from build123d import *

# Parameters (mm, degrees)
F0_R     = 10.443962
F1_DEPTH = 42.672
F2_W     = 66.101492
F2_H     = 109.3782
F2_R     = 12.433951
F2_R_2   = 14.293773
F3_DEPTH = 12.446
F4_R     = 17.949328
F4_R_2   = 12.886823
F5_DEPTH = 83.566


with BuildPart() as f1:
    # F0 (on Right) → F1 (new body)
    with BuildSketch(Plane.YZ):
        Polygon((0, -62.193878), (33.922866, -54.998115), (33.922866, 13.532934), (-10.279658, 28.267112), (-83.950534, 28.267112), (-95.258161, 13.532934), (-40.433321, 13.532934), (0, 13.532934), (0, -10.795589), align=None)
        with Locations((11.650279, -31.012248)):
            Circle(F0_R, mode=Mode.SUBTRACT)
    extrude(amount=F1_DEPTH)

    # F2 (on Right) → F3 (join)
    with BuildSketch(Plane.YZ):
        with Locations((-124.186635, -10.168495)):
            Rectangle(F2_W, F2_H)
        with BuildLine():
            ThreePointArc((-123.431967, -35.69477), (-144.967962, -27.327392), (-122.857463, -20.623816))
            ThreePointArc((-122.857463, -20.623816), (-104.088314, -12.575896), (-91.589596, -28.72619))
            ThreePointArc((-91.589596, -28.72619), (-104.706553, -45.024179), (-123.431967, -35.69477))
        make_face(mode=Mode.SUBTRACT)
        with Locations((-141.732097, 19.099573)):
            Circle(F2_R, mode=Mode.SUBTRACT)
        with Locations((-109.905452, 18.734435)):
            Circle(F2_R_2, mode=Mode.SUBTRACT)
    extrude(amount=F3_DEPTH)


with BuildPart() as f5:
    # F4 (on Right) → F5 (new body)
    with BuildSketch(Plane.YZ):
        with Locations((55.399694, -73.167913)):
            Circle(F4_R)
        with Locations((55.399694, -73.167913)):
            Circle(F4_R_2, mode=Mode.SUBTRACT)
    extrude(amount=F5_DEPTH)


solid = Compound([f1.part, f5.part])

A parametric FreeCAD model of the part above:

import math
import FreeCAD as App
import Part
import Sketcher

V = App.Vector
Q = App.Units.Quantity

doc = App.newDocument("Part")
body = doc.addObject("PartDesign::Body", "Body")

sketch1 = doc.addObject("Sketcher::SketchObject", "Sketch")
body.addObject(sketch1)
sketch1.AttachmentSupport = (doc.YZ_Plane, [""])
sketch1.MapMode = "FlatFace"
sketch1.addGeometry([
    Part.LineSegment(V(0, -62, 0), V(34, -55, 0)),
    Part.LineSegment(V(34, -55, 0), V(34, 14, 0)),
    Part.LineSegment(V(34, 14, 0), V(-10, 28, 0)),
    Part.LineSegment(V(-10, 28, 0), V(-84, 28, 0)),
    Part.LineSegment(V(-84, 28, 0), V(-95, 14, 0)),
    Part.LineSegment(V(-95, 14, 0), V(0, 14, 0)),
    Part.LineSegment(V(0, 14, 0), V(0, -62, 0)),
    Part.Circle(V(12, -31, 0), V(0, 0, 1), 10),
], False)
sketch1.addConstraint([
    Sketcher.Constraint("Coincident", 0, 2, 1, 1),
    Sketcher.Constraint("Coincident", 1, 2, 2, 1),
    Sketcher.Constraint("Coincident", 2, 2, 3, 1),
    Sketcher.Constraint("Coincident", 3, 2, 4, 1),
    Sketcher.Constraint("Coincident", 4, 2, 5, 1),
    Sketcher.Constraint("Coincident", 5, 2, 6, 1),
    Sketcher.Constraint("Coincident", 6, 2, 0, 1),
    Sketcher.Constraint("Vertical", 1),
    Sketcher.Constraint("Horizontal", 3),
    Sketcher.Constraint("Horizontal", 5),
    Sketcher.Constraint("Vertical", 6),
    Sketcher.Constraint("PointOnObject", 5, 2, -2),
    Sketcher.Constraint("Horizontal", 1, 2, 4, 2),
    Sketcher.Constraint("Diameter", 7, 20.887924),
    Sketcher.Constraint("DistanceX", 5, 1, 5, 2, 95.258161),
    Sketcher.Constraint("DistanceY", 1, 1, 1, 2, 68.531049),
    Sketcher.Constraint("DistanceY", 6, 2, 6, 1, 75.726812),
    Sketcher.Constraint("DistanceX", 3, 2, 1, 2, 117.8734),
    Sketcher.Constraint("DistanceX", 3, 2, 3, 1, 73.670876),
    Sketcher.Constraint("DistanceX", -1, 1, 7, 3, 11.650279),
    Sketcher.Constraint("DistanceY", 7, 3, 1, 2, 44.545182),
    Sketcher.Constraint("DistanceY", 1, 2, 2, 2, 14.734178),
    Sketcher.Constraint("Distance", 0, 34.677656),
    Sketcher.Constraint("DistanceY", 7, 3, -1, 1, 31.012248),
])
pad1 = doc.addObject("PartDesign::Pad", "Pad")
body.addObject(pad1)
pad1.Profile = sketch1
pad1.Length = Q("1.68 in")

sketch2 = doc.addObject("Sketcher::SketchObject", "Sketch001")
body.addObject(sketch2)
sketch2.AttachmentSupport = (doc.YZ_Plane, [""])
sketch2.MapMode = "FlatFace"
sketch2.addGeometry([
    Part.LineSegment(V(-157, 45, 0), V(-157, -65, 0)),
    Part.LineSegment(V(-157, -65, 0), V(-91, -65, 0)),
    Part.LineSegment(V(-91, -65, 0), V(-91, 45, 0)),
    Part.LineSegment(V(-91, 45, 0), V(-157, 45, 0)),
    Part.ArcOfCircle(Part.Circle(V(-108, -29, 0), V(0, 0, 1), 17), math.radians(-155), math.radians(0)),
    Part.ArcOfCircle(Part.Circle(V(-133, -28, 0), V(0, 0, 1), 12), math.radians(36), math.radians(320)),
    Part.ArcOfCircle(Part.Circle(V(-108, -29, 0), V(0, 0, 1), 17), math.radians(0), math.radians(151)),
    Part.Circle(V(-142, 19, 0), V(0, 0, 1), 12),
    Part.Circle(V(-110, 19, 0), V(0, 0, 1), 14),
], False)
sketch2.addConstraint([
    Sketcher.Constraint("Coincident", 0, 2, 1, 1),
    Sketcher.Constraint("Coincident", 1, 2, 2, 1),
    Sketcher.Constraint("Coincident", 2, 2, 3, 1),
    Sketcher.Constraint("Coincident", 3, 2, 0, 1),
    Sketcher.Constraint("Coincident", 4, 1, 5, 2),
    Sketcher.Constraint("Coincident", 5, 1, 6, 2),
    Sketcher.Constraint("Tangent", 6, 1, 4, 2),
    Sketcher.Constraint("Vertical", 0),
    Sketcher.Constraint("Horizontal", 1),
    Sketcher.Constraint("Vertical", 2),
    Sketcher.Constraint("Horizontal", 3),
    Sketcher.Constraint("Equal", 4, 6),
    Sketcher.Constraint("Horizontal", 4, 3, 6, 1),
    Sketcher.Constraint("Radius", 4, 16.683709),
    Sketcher.Constraint("Radius", 5, 12.221478),
    Sketcher.Constraint("Diameter", 7, 24.867902),
    Sketcher.Constraint("Diameter", 8, 28.587546),
    Sketcher.Constraint("DistanceY", 0, 2, 0, 1, 109.3782),
    Sketcher.Constraint("DistanceX", 1, 1, 1, 2, 66.101492),
    Sketcher.Constraint("DistanceX", 5, 3, 8, 3, 22.849902),
    Sketcher.Constraint("DistanceY", 4, 3, -1, 1, 28.726191),
    Sketcher.Constraint("DistanceX", 8, 3, -1, 1, 109.905452),
    Sketcher.Constraint("DistanceX", 0, 2, -1, 1, 157.237381),
    Sketcher.Constraint("DistanceY", 4, 1, -1, 1, 35.69477),
    Sketcher.Constraint("DistanceX", 5, 3, 4, 3, 24.482049),
    Sketcher.Constraint("DistanceY", 5, 3, 7, 3, 46.892509),
    Sketcher.Constraint("DistanceY", 5, 3, 8, 3, 46.527371),
    Sketcher.Constraint("DistanceY", 0, 2, 5, 3, 37.064659),
    Sketcher.Constraint("DistanceX", 7, 3, 2, 2, 50.596208),
])
pad2 = doc.addObject("PartDesign::Pad", "Pad001")
body.addObject(pad2)
pad2.Profile = sketch2
pad2.Length = Q("0.49 in")
body2 = doc.addObject("PartDesign::Body", "Body001")

sketch3 = doc.addObject("Sketcher::SketchObject", "Sketch002")
body2.addObject(sketch3)
sketch3.AttachmentSupport = (doc.getObject("YZ_Plane001"), [""])
sketch3.MapMode = "FlatFace"
sketch3.addGeometry([
    Part.Circle(V(55, -73, 0), V(0, 0, 1), 18),
    Part.Circle(V(55, -73, 0), V(0, 0, 1), 13),
], False)
sketch3.addConstraint([
    Sketcher.Constraint("Coincident", 1, 3, 0, 3),
    Sketcher.Constraint("Diameter", 0, 35.898656),
    Sketcher.Constraint("Diameter", 1, 25.773646),
    Sketcher.Constraint("DistanceX", -1, 1, 0, 3, 55.399694),
    Sketcher.Constraint("DistanceY", 0, 3, -1, 1, 73.167913),
])
pad3 = doc.addObject("PartDesign::Pad", "Pad002")
body2.addObject(pad3)
pad3.Profile = sketch3
pad3.Length = Q("3.29 in")

doc.recompute()
